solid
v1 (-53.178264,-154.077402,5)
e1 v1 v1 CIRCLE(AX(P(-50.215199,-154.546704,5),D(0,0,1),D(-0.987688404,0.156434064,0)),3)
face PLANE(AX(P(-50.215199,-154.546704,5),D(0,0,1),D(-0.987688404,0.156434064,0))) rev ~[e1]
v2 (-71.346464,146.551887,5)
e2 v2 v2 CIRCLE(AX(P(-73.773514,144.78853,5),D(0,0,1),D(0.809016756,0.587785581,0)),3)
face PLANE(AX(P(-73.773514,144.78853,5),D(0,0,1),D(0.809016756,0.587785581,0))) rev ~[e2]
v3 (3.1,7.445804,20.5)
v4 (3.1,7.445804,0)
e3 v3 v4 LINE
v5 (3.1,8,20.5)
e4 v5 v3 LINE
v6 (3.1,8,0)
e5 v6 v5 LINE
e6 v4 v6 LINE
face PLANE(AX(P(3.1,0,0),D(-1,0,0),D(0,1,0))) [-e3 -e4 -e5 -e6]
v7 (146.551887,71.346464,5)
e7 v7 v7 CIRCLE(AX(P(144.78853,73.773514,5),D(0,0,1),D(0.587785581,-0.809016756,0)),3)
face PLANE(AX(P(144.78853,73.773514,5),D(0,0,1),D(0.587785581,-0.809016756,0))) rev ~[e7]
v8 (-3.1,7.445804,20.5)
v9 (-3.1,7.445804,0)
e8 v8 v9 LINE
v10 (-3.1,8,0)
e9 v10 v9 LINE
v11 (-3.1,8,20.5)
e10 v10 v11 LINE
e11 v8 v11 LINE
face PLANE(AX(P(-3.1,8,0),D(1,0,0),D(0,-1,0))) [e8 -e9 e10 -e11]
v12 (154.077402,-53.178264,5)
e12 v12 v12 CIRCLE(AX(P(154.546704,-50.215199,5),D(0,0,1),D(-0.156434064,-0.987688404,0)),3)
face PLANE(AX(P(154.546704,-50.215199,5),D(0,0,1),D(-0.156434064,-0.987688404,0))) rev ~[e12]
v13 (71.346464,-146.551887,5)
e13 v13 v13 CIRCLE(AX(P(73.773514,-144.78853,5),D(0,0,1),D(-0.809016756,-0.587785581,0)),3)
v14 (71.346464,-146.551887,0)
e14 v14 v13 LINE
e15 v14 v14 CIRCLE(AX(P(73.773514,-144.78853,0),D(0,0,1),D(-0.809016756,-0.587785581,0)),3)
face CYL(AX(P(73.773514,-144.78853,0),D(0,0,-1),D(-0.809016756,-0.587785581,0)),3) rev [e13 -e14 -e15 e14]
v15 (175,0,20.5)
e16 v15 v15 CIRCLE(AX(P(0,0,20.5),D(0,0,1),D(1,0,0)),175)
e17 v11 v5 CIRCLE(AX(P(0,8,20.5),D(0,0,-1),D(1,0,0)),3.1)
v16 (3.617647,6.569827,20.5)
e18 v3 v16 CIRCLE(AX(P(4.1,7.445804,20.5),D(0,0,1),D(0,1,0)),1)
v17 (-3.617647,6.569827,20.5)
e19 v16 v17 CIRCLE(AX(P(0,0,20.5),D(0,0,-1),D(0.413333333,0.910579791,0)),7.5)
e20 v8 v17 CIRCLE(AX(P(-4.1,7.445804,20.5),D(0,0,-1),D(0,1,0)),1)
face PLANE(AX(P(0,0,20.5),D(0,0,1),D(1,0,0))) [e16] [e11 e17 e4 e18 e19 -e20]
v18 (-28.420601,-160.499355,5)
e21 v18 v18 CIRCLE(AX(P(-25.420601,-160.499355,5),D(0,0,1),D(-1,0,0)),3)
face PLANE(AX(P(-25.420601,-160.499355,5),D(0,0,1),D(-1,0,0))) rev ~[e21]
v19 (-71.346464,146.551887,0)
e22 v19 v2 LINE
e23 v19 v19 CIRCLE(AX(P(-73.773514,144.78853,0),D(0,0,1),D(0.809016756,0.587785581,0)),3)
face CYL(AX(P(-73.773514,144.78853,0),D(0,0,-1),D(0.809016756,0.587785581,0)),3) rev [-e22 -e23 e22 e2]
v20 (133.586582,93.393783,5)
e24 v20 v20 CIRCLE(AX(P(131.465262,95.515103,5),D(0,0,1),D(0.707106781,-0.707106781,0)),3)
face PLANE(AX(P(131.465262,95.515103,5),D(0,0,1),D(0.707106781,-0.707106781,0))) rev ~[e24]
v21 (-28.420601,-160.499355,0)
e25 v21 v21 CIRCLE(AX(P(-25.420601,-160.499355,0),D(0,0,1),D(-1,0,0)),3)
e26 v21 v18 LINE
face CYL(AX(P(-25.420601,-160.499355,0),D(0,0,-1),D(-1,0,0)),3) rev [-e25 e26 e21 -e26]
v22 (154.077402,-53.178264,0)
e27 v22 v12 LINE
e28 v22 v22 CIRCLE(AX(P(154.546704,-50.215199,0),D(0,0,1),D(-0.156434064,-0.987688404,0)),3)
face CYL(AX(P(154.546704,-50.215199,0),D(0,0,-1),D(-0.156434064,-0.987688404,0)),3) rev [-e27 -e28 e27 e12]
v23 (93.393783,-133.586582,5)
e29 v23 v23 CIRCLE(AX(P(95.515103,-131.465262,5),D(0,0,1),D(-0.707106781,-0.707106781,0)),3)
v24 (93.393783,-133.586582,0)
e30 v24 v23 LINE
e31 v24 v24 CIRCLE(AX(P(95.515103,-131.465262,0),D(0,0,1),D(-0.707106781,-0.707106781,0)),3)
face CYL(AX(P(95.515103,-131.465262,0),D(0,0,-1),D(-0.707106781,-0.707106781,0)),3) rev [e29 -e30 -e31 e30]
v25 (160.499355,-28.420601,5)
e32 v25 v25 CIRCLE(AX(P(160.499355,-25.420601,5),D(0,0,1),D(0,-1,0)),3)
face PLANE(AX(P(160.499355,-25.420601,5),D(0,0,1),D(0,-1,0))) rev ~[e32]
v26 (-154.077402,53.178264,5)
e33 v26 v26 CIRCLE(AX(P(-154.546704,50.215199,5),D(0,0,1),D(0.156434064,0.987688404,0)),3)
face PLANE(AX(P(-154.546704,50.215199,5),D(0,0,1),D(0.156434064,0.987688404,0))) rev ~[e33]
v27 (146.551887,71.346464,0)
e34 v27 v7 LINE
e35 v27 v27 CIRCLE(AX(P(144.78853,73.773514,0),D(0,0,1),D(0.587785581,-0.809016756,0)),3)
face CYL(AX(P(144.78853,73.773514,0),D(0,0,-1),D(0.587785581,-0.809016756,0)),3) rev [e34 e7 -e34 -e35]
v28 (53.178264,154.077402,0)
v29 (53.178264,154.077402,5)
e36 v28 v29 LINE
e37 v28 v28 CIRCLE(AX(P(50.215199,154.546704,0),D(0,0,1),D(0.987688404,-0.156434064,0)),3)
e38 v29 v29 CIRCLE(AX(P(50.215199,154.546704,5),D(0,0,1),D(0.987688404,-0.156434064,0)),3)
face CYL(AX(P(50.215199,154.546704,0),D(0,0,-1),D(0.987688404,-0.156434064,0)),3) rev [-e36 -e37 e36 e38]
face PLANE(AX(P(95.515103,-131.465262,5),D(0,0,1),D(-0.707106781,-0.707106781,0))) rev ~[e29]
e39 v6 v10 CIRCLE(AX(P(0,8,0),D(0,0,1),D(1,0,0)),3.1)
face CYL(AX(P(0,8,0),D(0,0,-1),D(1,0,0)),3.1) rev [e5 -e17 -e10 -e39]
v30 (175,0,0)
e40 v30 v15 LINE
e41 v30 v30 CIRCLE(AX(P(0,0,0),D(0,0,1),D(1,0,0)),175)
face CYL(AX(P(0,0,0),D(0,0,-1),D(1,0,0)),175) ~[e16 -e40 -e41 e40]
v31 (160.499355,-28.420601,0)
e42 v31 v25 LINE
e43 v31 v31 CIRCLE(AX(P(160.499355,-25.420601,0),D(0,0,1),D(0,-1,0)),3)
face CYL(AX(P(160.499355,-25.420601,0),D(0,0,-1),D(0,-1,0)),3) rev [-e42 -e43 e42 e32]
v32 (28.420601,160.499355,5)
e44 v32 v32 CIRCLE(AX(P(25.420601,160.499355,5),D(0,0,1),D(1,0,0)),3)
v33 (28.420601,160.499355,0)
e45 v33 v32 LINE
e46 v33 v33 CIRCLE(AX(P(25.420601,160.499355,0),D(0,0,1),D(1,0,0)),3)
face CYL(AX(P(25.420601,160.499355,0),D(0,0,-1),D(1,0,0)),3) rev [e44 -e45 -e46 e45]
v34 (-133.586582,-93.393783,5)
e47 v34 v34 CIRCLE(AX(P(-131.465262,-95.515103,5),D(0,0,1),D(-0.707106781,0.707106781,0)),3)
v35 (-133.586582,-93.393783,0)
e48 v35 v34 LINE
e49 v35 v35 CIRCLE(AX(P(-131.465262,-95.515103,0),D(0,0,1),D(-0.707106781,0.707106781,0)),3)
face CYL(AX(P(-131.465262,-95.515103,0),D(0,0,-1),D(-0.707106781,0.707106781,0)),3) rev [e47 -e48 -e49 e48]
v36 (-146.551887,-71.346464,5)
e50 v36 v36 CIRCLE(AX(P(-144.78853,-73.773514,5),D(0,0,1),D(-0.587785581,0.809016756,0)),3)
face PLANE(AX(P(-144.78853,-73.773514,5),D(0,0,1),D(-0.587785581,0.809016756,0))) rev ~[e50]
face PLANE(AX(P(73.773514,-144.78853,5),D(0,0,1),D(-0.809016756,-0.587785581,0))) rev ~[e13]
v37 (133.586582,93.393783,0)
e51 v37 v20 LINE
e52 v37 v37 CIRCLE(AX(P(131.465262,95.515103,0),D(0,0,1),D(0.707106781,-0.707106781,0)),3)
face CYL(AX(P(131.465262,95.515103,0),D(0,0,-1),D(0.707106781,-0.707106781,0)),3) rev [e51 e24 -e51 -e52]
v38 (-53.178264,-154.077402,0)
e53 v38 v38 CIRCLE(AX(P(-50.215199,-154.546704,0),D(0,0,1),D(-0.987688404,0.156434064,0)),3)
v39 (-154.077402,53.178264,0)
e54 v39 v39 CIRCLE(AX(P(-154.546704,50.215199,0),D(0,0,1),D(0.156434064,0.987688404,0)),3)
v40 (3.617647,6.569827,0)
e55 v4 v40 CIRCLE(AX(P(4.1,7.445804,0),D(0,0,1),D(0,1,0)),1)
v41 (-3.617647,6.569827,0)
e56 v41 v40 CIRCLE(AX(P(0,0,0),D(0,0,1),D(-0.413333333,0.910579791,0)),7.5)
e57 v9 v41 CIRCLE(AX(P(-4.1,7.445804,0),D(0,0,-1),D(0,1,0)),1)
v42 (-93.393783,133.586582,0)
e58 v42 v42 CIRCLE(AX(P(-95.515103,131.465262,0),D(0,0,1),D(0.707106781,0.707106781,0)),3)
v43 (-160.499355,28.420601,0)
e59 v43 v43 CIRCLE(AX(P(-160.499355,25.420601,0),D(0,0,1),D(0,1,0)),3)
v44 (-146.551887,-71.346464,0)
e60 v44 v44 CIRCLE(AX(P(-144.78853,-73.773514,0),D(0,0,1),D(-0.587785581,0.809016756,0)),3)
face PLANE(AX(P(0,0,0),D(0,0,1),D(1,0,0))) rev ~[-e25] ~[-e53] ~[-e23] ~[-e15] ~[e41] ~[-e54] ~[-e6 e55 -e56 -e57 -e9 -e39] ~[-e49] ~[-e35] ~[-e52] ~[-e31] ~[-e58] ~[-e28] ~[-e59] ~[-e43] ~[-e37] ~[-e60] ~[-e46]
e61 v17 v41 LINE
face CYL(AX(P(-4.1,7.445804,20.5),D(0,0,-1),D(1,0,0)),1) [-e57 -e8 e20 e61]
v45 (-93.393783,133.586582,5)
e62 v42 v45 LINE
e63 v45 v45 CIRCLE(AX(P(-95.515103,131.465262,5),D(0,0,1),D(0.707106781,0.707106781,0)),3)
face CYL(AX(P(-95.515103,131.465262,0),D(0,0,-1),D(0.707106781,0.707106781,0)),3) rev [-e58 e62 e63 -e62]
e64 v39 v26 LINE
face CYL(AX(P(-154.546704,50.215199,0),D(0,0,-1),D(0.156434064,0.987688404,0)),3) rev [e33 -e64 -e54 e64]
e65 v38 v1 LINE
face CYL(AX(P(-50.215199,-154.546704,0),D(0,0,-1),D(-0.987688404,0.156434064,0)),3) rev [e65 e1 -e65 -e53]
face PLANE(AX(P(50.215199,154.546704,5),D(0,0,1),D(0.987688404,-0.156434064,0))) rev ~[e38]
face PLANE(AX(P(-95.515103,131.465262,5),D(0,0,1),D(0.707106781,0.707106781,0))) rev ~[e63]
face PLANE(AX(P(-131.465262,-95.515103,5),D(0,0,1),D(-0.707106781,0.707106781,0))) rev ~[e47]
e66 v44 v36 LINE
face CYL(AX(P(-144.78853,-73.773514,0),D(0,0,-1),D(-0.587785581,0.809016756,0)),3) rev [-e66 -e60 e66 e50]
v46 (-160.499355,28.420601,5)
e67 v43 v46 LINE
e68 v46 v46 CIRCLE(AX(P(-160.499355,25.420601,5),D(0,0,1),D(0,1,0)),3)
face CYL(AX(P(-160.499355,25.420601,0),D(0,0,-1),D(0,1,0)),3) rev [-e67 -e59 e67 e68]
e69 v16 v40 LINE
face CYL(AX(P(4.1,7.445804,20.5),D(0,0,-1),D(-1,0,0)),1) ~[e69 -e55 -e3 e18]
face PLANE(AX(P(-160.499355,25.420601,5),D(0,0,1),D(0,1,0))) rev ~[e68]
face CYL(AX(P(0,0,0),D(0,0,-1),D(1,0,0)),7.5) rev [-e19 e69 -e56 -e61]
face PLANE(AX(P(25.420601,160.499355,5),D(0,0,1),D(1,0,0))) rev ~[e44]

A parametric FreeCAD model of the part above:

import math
import FreeCAD as App
import Part
import Sketcher

V = App.Vector
Q = App.Units.Quantity


def edges_at(feature, points):
    """Names of the edges that pass closest to the given points."""
    edges = feature.Shape.Edges
    near = lambda p: min(range(len(edges)), key=lambda i: edges[i].distToShape(Part.Vertex(*p))[0])
    return sorted({f"Edge{near(p) + 1}" for p in points})

doc = App.newDocument("Part")
body = doc.addObject("PartDesign::Body", "Body")

# Sketch on XY plane
sketch1 = body.newObject("Sketcher::SketchObject", "Sketch")
sketch1.AttachmentSupport = (doc.getObject("XY_Plane"), [""])
sketch1.MapMode = "FlatFace"
sketch1.addGeometry([
    Part.Circle(V(0, 0, 0), V(0, 0, 1), 175),
    Part.Circle(V(0, 0, 0), V(0, 0, 1), 8),
], False)
sketch1.addConstraint([
    Sketcher.Constraint("Coincident", 0, 3, -1, 1),
    Sketcher.Constraint("Coincident", 1, 3, -1, 1),
    Sketcher.Constraint("Diameter", 0, Q("350 mm")),
    Sketcher.Constraint("Diameter", 1, Q("15 mm")),
])
pad1 = body.newObject("PartDesign::Pad", "Pad")
pad1.Profile = sketch1
pad1.Length = 20.5

# Sketch on XY plane
sketch2 = body.newObject("Sketcher::SketchObject", "Sketch001")
sketch2.AttachmentSupport = (doc.getObject("XY_Plane"), [""])
sketch2.MapMode = "FlatFace"
sketch2.addGeometry(Part.Circle(V(25.4, 160.5, 0), V(0, 0, 1), 3), False)
sketch2.addConstraint([
    Sketcher.Constraint("Diameter", 0, Q("6 mm")),
    Sketcher.Constraint("DistanceX", -1, 1, 0, 3, Q("25.420601 mm")),
    Sketcher.Constraint("DistanceY", -1, 1, 0, 3, Q("160.499355 mm")),
])
pocket1 = body.newObject("PartDesign::Pocket", "Pocket")
pocket1.Profile = sketch2
pocket1.Length = 5
pocket1.Reversed = True

# Sketch on XY plane
sketch3 = body.newObject("Sketcher::SketchObject", "Sketch002")
sketch3.AttachmentSupport = (doc.getObject("XY_Plane"), [""])
sketch3.MapMode = "FlatFace"
sketch3.addGeometry(Part.Circle(V(50.2, 154.5, 0), V(0, 0, 1), 3), False)
sketch3.addConstraint([
    Sketcher.Constraint("Diameter", 0, Q("6 mm")),
    Sketcher.Constraint("DistanceX", -1, 1, 0, 3, Q("50.215199 mm")),
    Sketcher.Constraint("DistanceY", -1, 1, 0, 3, Q("154.546704 mm")),
])
pocket2 = body.newObject("PartDesign::Pocket", "Pocket001")
pocket2.Profile = sketch3
pocket2.Length = 5
pocket2.Reversed = True
doc.recompute()

polarpattern = body.newObject("PartDesign::PolarPattern", "PolarPattern")
polarpattern.Originals = [pocket1, pocket2]
polarpattern.Axis = (doc.getObject("Z_Axis"), [""])
polarpattern.Angle = 360
polarpattern.Occurrences = 8
body.Tip = polarpattern

# Sketch on XY plane
sketch4 = body.newObject("Sketcher::SketchObject", "Sketch003")
sketch4.AttachmentSupport = (doc.getObject("XY_Plane"), [""])
sketch4.MapMode = "FlatFace"
sketch4.addGeometry([
    Part.ArcOfCircle(Part.Circle(V(0, 0, 0), V(0, 0, 1), 3.1), math.radians(180), math.radians(360)),
    Part.LineSegment(V(3.1, 0, 0), V(3.1, 8, 0)),
    Part.ArcOfCircle(Part.Circle(V(0, 8, 0), V(0, 0, 1), 3.1), math.radians(0), math.radians(180)),
    Part.LineSegment(V(-3.1, 8, 0), V(-3.1, 0, 0)),
], False)
sketch4.addConstraint([
    Sketcher.Constraint("Tangent", 0, 2, 1, 1),
    Sketcher.Constraint("Tangent", 1, 2, 2, 1),
    Sketcher.Constraint("Tangent", 2, 2, 3, 1),
    Sketcher.Constraint("Tangent", 3, 2, 0, 1),
    Sketcher.Constraint("Vertical", 1),
    Sketcher.Constraint("Vertical", 3),
    Sketcher.Constraint("Coincident", 0, 3, -1, 1),
    Sketcher.Constraint("Radius", 0, Q("3.1 mm")),
    Sketcher.Constraint("DistanceY", 1, 1, 1, 2, Q("8 mm")),
])
pocket3 = body.newObject("PartDesign::Pocket", "Pocket002")
pocket3.Profile = sketch4
pocket3.Type = "ThroughAll"
pocket3.Reversed = True
doc.recompute()

fillet = body.newObject("PartDesign::Fillet", "Fillet")
fillet.Base = (pocket3, edges_at(pocket3, [(-3.1, 6.829, 10.25), (3.1, 6.829, 10.25)]))
fillet.Radius = 1

doc.recompute()
